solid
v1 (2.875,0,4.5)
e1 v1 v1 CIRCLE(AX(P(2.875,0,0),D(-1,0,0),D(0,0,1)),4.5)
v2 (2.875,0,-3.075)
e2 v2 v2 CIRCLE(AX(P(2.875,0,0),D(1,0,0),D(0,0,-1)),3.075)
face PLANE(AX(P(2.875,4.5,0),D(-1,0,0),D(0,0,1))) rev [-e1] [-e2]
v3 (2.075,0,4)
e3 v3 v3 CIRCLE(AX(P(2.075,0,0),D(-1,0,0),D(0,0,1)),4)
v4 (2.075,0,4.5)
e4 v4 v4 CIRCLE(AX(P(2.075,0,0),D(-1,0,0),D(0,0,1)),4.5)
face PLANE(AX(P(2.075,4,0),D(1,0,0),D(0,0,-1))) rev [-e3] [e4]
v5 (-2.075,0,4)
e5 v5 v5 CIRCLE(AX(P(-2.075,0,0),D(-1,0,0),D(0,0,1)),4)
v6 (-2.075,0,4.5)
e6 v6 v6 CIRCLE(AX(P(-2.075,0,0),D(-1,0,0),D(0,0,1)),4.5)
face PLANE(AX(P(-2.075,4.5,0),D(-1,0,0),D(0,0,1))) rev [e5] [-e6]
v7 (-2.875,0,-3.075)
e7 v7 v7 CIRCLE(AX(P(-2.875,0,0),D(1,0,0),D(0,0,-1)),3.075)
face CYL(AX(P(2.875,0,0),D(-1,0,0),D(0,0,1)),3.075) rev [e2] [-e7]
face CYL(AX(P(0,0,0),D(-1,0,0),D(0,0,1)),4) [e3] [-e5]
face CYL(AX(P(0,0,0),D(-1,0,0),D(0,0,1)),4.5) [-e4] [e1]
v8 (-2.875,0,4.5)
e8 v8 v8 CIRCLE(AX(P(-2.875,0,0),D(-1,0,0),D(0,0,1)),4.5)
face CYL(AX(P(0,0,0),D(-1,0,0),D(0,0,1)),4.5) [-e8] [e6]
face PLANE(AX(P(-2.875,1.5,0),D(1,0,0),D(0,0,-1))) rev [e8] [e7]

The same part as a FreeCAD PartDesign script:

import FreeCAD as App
import Part
import Sketcher

V = App.Vector

doc = App.newDocument("Part")
body = doc.addObject("PartDesign::Body", "Body")

sketch1 = body.newObject("Sketcher::SketchObject", "Sketch")
sketch1.AttachmentSupport = (doc.getObject("XY_Plane"), [""])
sketch1.MapMode = "FlatFace"
sketch1.addGeometry([
    Part.LineSegment(V(-2.9, 4.5, 0), V(-2.9, 1.5, 0)),
    Part.LineSegment(V(-2.9, 1.5, 0), V(2.9, 1.5, 0)),
    Part.LineSegment(V(2.9, 1.5, 0), V(2.9, 4.5, 0)),
    Part.LineSegment(V(2.9, 4.5, 0), V(2.1, 4.5, 0)),
    Part.LineSegment(V(2.1, 4.5, 0), V(2.1, 4, 0)),
    Part.LineSegment(V(2.1, 4, 0), V(-2.1, 4, 0)),
    Part.LineSegment(V(-2.1, 4, 0), V(-2.1, 4.5, 0)),
    Part.LineSegment(V(-2.1, 4.5, 0), V(-2.9, 4.5, 0)),
], False)
sketch1.addConstraint([
    Sketcher.Constraint("Coincident", 0, 2, 1, 1),
    Sketcher.Constraint("Coincident", 1, 2, 2, 1),
    Sketcher.Constraint("Coincident", 2, 2, 3, 1),
    Sketcher.Constraint("Coincident", 3, 2, 4, 1),
    Sketcher.Constraint("Coincident", 4, 2, 5, 1),
    Sketcher.Constraint("Coincident", 5, 2, 6, 1),
    Sketcher.Constraint("Coincident", 6, 2, 7, 1),
    Sketcher.Constraint("Coincident", 7, 2, 0, 1),
    Sketcher.Constraint("Vertical", 0),
    Sketcher.Constraint("Horizontal", 1),
    Sketcher.Constraint("Vertical", 2),
    Sketcher.Constraint("Horizontal", 3),
    Sketcher.Constraint("Vertical", 4),
    Sketcher.Constraint("Horizontal", 5),
    Sketcher.Constraint("Vertical", 6),
    Sketcher.Constraint("Horizontal", 7),
    Sketcher.Constraint("Symmetric", 3, 2, 6, 2, -2),
    Sketcher.Constraint("Equal", 3, 7),
    Sketcher.Constraint("DistanceY", 0, 2, 0, 1, 3.0),
    Sketcher.Constraint("DistanceX", 3, 2, 3, 1, 0.8),
    Sketcher.Constraint("DistanceY", 4, 2, 4, 1, 0.5),
    Sketcher.Constraint("DistanceY", -1, 1, 4, 2, 4.0),
    Sketcher.Constraint("DistanceX", 1, 1, 1, 2, 5.75),
])
revolution = body.newObject("PartDesign::Revolution", "Revolution")
revolution.Profile = sketch1
revolution.ReferenceAxis = (sketch1, ["H_Axis"])
revolution.Angle = 360

sketch2 = body.newObject("Sketcher::SketchObject", "Sketch001")
sketch2.AttachmentSupport = (doc.getObject("YZ_Plane"), [""])
sketch2.MapMode = "FlatFace"
sketch2.addGeometry(Part.Circle(V(0, 0, 0), V(0, 0, 1), 3.1), False)
sketch2.addConstraint([
    Sketcher.Constraint("Coincident", 0, 3, -1, 1),
    Sketcher.Constraint("Diameter", 0, 6.15),
])
pocket1 = body.newObject("PartDesign::Pocket", "Pocket")
pocket1.Profile = sketch2
pocket1.Type = "ThroughAll"
pocket1.Midplane = True

doc.recompute()
